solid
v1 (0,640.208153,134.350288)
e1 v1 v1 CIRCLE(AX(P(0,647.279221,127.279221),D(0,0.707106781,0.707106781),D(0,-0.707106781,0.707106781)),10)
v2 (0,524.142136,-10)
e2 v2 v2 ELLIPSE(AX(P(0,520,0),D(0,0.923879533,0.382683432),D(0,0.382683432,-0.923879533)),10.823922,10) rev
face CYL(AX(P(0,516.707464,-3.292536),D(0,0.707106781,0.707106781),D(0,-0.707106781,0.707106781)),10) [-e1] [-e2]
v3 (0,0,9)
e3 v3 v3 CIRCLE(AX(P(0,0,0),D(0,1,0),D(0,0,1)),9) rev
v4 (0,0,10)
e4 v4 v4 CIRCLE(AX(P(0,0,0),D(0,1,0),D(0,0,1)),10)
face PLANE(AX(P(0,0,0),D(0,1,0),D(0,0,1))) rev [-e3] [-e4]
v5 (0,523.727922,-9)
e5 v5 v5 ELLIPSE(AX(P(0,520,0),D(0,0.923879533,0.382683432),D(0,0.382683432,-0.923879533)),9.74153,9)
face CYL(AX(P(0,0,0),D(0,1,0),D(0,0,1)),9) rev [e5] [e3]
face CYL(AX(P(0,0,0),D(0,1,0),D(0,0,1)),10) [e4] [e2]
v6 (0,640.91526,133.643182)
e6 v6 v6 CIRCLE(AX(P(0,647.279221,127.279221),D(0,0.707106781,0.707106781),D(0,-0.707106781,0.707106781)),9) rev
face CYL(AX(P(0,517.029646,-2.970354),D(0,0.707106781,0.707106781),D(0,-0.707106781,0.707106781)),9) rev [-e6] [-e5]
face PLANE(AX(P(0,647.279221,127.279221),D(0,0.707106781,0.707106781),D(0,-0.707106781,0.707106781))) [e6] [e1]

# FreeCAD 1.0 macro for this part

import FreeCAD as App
import Part
import Sketcher
Q = App.Units.Quantity

doc = App.newDocument("Part")
body = doc.addObject("PartDesign::Body", "Body")

# Sketch on XZ plane
sketch1 = body.newObject("Sketcher::SketchObject", "Sketch")
sketch1.AttachmentSupport = (doc.getObject("XZ_Plane"), [""])
sketch1.MapMode = "FlatFace"
sketch1.addGeometry(Part.Circle(App.Vector(0, 0, 0), App.Vector(0, 0, 1), 10), False)
sketch1.addGeometry(Part.Circle(App.Vector(0, 0, 0), App.Vector(0, 0, 1), 9), False)
sketch1.addConstraint(Sketcher.Constraint("Coincident", 0, 3, -1, 1))
sketch1.addConstraint(Sketcher.Constraint("Coincident", 1, 3, -1, 1))
sketch1.addConstraint(Sketcher.Constraint("Diameter", 0, Q("20 mm")))
sketch1.addConstraint(Sketcher.Constraint("Diameter", 1, Q("18 mm")))

# Sketch on YZ plane
sketch2 = body.newObject("Sketcher::SketchObject", "Sketch001")
sketch2.AttachmentSupport = (doc.getObject("YZ_Plane"), [""])
sketch2.MapMode = "FlatFace"
sketch2.addGeometry(Part.LineSegment(App.Vector(0, 0, 0), App.Vector(520, 0, 0)), False)
sketch2.addGeometry(Part.LineSegment(App.Vector(520, 0, 0), App.Vector(647, 127, 0)), False)
sketch2.addConstraint(Sketcher.Constraint("Coincident", 0, 2, 1, 1))
sketch2.addConstraint(Sketcher.Constraint("Horizontal", 0))
sketch2.addConstraint(Sketcher.Constraint("Coincident", 0, 1, -1, 1))
sketch2.addConstraint(Sketcher.Constraint("DistanceX", 0, 1, 0, 2, Q("520 mm")))
sketch2.addConstraint(Sketcher.Constraint("Angle", 1, Q("45 deg")))
sketch2.addConstraint(Sketcher.Constraint("Distance", 1, Q("180 mm")))
doc.recompute()

additivepipe = body.newObject("PartDesign::AdditivePipe", "AdditivePipe")
additivepipe.Profile = sketch1
additivepipe.Spine = (sketch2, ["Edge1", "Edge2"])
additivepipe.Transition = "Right corner"

doc.recompute()
